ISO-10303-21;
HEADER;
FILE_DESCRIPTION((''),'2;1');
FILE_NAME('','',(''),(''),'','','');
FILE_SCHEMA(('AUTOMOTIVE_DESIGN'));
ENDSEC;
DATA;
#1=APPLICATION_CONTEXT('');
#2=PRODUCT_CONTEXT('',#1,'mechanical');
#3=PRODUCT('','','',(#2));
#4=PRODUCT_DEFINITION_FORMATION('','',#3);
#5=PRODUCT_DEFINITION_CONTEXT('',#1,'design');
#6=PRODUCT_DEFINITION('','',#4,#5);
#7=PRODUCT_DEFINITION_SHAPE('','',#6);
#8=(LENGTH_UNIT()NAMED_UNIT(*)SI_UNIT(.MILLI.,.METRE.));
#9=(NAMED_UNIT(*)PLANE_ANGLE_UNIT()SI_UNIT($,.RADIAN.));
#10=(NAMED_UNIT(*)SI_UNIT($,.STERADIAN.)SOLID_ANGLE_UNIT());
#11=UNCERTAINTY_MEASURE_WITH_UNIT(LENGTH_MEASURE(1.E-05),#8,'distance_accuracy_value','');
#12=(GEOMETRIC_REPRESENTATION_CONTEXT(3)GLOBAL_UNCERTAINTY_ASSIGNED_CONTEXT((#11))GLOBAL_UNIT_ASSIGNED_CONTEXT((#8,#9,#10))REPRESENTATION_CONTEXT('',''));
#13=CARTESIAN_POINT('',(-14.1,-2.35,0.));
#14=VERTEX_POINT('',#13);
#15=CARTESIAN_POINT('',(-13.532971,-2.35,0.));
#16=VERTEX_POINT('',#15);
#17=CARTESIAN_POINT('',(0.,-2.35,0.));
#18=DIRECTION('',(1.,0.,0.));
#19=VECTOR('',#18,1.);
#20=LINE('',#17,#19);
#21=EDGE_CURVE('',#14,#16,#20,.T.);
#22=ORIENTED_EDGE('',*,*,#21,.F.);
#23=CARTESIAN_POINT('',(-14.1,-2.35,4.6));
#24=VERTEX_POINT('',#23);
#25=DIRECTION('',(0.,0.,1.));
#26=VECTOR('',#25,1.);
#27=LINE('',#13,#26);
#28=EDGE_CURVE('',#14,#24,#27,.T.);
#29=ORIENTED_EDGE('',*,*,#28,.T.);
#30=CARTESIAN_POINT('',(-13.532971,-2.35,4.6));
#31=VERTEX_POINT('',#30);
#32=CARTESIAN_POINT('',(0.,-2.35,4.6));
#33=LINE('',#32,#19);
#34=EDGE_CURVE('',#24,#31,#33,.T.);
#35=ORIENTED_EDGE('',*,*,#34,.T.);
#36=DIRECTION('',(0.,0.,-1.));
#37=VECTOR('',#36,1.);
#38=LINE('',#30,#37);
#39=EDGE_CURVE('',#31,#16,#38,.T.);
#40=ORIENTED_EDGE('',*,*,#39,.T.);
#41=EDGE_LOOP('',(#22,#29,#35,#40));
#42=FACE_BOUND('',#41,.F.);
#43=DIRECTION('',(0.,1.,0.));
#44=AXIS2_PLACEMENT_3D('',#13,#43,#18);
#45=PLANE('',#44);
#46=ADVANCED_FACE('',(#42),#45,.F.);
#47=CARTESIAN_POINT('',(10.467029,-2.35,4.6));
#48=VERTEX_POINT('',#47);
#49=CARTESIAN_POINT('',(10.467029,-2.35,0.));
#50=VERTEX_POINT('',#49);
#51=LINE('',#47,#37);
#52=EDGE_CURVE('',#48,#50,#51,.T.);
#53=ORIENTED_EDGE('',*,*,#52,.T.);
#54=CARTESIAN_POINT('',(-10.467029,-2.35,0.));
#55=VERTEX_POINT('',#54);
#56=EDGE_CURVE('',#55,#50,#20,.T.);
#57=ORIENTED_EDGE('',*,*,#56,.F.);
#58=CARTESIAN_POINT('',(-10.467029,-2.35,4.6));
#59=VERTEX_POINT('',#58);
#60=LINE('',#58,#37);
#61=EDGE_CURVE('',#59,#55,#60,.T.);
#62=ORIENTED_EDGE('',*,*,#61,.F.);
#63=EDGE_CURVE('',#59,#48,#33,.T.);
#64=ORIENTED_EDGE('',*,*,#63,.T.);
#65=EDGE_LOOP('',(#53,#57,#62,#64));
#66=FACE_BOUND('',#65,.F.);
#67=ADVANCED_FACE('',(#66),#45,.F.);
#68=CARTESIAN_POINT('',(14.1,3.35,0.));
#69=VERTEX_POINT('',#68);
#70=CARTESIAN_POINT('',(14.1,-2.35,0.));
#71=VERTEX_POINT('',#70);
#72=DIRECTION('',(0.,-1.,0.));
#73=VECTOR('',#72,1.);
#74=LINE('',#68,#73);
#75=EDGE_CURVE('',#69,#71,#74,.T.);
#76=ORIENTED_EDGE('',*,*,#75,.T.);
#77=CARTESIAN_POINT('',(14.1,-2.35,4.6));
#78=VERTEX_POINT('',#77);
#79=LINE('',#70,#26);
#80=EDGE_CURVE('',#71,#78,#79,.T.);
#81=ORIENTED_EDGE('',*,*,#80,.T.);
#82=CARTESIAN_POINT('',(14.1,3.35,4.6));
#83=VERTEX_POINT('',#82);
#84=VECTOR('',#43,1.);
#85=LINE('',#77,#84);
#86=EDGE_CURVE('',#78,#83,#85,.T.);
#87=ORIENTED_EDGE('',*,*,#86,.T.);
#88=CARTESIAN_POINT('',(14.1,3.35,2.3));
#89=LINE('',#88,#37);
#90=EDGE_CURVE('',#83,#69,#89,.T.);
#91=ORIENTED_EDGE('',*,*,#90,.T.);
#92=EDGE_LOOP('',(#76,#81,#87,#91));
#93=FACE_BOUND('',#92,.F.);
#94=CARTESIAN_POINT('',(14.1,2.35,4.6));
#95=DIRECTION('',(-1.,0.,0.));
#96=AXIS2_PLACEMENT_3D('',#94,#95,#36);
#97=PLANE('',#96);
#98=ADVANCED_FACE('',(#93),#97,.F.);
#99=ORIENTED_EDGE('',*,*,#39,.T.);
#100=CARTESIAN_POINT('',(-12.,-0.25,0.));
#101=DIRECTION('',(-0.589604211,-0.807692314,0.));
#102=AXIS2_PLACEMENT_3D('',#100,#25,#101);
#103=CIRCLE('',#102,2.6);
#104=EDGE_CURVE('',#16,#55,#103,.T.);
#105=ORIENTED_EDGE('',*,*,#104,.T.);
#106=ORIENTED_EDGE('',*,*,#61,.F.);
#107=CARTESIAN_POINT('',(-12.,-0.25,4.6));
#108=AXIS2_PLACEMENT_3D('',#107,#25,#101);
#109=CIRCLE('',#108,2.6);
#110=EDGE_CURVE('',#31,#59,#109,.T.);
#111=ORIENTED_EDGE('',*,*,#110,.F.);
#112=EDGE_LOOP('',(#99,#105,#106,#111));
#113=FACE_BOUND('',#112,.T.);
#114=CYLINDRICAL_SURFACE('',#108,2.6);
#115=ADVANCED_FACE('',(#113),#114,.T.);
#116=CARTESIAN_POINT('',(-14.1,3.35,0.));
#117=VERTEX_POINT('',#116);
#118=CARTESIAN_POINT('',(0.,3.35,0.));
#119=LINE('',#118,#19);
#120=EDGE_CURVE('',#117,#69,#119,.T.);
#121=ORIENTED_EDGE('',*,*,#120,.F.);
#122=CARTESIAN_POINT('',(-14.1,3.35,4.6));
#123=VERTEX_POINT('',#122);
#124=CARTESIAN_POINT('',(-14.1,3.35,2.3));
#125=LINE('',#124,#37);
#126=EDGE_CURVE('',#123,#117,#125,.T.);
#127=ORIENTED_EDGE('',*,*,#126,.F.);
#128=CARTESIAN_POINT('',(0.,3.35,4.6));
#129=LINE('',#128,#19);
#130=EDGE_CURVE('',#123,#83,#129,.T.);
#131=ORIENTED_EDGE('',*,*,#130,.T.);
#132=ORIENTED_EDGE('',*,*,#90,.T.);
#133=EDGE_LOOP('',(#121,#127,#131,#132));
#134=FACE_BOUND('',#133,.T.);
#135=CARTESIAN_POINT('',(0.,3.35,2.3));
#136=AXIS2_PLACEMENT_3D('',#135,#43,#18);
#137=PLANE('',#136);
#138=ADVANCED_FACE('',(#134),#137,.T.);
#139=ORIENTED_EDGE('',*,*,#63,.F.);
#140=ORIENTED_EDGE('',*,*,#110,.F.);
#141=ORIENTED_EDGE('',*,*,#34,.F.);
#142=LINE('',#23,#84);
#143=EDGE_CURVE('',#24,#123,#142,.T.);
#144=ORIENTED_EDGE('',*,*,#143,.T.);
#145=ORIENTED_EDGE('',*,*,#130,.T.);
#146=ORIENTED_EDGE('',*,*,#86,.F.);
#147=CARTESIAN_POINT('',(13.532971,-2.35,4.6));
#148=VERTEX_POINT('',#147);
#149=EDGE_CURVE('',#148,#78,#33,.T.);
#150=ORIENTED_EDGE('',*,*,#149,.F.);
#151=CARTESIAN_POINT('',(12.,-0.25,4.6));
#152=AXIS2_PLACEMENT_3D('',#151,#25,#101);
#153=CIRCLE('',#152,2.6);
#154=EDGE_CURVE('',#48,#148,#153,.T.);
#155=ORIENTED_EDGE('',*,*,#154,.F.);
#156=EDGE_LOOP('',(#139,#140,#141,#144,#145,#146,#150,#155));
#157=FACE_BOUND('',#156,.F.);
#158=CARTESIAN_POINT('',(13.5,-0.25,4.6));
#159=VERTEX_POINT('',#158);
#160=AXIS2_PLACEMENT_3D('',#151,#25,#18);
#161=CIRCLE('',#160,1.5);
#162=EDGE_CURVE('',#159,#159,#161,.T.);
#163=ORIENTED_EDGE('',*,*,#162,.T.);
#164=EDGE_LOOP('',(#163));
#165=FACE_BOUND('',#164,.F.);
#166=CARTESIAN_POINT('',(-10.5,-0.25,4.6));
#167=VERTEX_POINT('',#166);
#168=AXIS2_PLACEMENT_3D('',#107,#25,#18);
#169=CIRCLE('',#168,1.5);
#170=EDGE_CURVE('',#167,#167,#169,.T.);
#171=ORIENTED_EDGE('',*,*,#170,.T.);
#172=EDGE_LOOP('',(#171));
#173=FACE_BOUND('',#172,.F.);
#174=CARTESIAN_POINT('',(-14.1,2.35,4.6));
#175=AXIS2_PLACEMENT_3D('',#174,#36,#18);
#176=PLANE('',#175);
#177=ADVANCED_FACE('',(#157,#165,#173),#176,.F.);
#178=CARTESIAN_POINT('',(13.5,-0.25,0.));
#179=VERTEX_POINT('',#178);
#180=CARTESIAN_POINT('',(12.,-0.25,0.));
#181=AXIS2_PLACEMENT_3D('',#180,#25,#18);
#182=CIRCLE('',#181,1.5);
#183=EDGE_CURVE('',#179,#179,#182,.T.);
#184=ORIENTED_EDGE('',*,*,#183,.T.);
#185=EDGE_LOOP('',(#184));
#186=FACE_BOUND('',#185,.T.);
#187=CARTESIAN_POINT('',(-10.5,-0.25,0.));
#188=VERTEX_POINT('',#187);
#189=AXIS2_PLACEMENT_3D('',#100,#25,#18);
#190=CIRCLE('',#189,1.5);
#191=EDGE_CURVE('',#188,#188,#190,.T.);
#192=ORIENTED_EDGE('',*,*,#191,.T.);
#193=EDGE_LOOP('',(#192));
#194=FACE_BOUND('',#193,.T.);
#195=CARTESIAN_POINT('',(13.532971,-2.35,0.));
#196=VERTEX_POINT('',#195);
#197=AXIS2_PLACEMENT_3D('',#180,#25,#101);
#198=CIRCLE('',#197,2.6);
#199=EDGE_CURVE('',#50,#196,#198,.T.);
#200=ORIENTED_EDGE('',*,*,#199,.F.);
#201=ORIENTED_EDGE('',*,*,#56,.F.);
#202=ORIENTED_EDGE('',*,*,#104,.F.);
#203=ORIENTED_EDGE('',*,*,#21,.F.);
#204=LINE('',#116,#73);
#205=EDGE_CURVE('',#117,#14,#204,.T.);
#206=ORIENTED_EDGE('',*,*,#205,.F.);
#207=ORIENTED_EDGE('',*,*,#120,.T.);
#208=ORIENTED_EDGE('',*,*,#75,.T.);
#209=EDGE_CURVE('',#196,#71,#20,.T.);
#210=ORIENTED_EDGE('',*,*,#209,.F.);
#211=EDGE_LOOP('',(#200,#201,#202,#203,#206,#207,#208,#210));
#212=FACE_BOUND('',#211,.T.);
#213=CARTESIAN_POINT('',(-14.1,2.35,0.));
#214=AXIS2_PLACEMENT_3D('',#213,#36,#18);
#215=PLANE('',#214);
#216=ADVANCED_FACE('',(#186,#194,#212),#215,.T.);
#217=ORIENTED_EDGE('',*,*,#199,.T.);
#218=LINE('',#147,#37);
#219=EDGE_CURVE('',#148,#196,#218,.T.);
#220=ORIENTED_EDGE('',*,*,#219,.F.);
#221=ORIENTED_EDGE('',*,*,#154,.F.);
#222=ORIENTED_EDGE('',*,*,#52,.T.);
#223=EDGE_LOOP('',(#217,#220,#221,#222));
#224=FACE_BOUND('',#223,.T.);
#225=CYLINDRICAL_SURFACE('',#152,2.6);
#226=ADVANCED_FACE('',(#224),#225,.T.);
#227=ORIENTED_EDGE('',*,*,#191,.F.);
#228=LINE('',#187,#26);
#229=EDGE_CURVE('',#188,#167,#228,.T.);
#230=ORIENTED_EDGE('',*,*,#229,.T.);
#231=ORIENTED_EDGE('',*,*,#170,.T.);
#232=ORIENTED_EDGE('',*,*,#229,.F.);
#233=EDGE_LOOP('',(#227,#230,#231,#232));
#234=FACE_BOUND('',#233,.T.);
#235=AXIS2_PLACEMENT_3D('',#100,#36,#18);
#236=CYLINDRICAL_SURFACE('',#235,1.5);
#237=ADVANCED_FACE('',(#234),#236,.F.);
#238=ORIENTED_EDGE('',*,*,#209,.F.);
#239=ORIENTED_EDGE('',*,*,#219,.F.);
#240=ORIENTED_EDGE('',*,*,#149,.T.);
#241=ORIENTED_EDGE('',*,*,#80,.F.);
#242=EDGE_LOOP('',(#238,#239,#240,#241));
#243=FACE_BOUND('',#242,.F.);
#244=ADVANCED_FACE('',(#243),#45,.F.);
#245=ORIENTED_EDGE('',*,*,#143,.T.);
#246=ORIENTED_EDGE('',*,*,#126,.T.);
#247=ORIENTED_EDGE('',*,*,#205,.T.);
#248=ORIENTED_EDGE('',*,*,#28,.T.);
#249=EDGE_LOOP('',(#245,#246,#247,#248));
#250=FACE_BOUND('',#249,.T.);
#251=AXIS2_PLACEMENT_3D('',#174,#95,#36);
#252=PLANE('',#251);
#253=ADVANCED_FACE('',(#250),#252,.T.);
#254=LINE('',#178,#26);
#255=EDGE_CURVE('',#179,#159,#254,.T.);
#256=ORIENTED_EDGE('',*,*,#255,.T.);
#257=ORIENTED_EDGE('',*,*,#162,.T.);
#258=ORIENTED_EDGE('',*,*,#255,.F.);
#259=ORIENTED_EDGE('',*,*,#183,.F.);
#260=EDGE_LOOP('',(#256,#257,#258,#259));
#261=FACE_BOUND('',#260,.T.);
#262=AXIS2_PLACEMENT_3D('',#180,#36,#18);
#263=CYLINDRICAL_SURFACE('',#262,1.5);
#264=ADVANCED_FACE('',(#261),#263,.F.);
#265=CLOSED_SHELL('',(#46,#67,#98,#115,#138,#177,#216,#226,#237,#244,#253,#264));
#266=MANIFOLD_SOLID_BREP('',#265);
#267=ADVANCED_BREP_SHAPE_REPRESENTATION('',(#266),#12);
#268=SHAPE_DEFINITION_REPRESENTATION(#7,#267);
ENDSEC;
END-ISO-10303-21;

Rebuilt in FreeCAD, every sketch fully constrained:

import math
import FreeCAD as App
import Part
import Sketcher

doc = App.newDocument("Part")
body = doc.addObject("PartDesign::Body", "Body")

# Sketch on XY plane
sketch1 = body.newObject("Sketcher::SketchObject", "Sketch")
sketch1.AttachmentSupport = (doc.getObject("XY_Plane"), [""])
sketch1.MapMode = "FlatFace"
sketch1.addGeometry(Part.LineSegment(App.Vector(-14.1, 2.35, 0), App.Vector(-14.1, -2.35, 0)), False)
sketch1.addGeometry(Part.LineSegment(App.Vector(-14.1, -2.35, 0), App.Vector(14.1, -2.35, 0)), False)
sketch1.addGeometry(Part.LineSegment(App.Vector(14.1, -2.35, 0), App.Vector(14.1, 2.35, 0)), False)
sketch1.addGeometry(Part.LineSegment(App.Vector(14.1, 2.35, 0), App.Vector(-14.1, 2.35, 0)), False)
sketch1.addGeometry(Part.Circle(App.Vector(-12, -0.25, 0), App.Vector(0, 0, 1), 1.5), False)
sketch1.addGeometry(Part.Circle(App.Vector(12, -0.25, 0), App.Vector(0, 0, 1), 1.5), False)
sketch1.addConstraint(Sketcher.Constraint("Coincident", 0, 2, 1, 1))
sketch1.addConstraint(Sketcher.Constraint("Coincident", 1, 2, 2, 1))
sketch1.addConstraint(Sketcher.Constraint("Coincident", 2, 2, 3, 1))
sketch1.addConstraint(Sketcher.Constraint("Coincident", 3, 2, 0, 1))
sketch1.addConstraint(Sketcher.Constraint("Vertical", 0))
sketch1.addConstraint(Sketcher.Constraint("Horizontal", 1))
sketch1.addConstraint(Sketcher.Constraint("Vertical", 2))
sketch1.addConstraint(Sketcher.Constraint("Horizontal", 3))
sketch1.addConstraint(Sketcher.Constraint("Equal", 4, 5))
sketch1.addConstraint(Sketcher.Constraint("Symmetric", 0, 2, 2, 2, -1, 1))
sketch1.addConstraint(Sketcher.Constraint("Symmetric", 4, 3, 5, 3, -2))
sketch1.addConstraint(Sketcher.Constraint("Diameter", 4, 3.0))
sketch1.addConstraint(Sketcher.Constraint("DistanceX", 1, 1, 1, 2, 28.2))
sketch1.addConstraint(Sketcher.Constraint("DistanceY", 0, 2, 0, 1, 4.7))
sketch1.addConstraint(Sketcher.Constraint("DistanceX", 4, 3, -1, 1, 12.0))
sketch1.addConstraint(Sketcher.Constraint("DistanceY", 0, 2, 4, 3, 2.1))
pad1 = body.newObject("PartDesign::Pad", "Pad")
pad1.Profile = sketch1
pad1.Length = 4.6

# Sketch on XY plane
sketch2 = body.newObject("Sketcher::SketchObject", "Sketch001")
sketch2.AttachmentSupport = (doc.getObject("XY_Plane"), [""])
sketch2.MapMode = "FlatFace"
sketch2.AttachmentOffset = App.Placement(App.Vector(0, 0, 4.6), App.Rotation())
sketch2.addGeometry(Part.ArcOfCircle(Part.Circle(App.Vector(12, -0.25, 0), App.Vector(0, 0, 1), 2.6), math.radians(-126.128927), math.radians(-53.871073)), False)
sketch2.addGeometry(Part.LineSegment(App.Vector(13.532971, -2.35, 0), App.Vector(10.467029, -2.35, 0)), False)
sketch2.addGeometry(Part.ArcOfCircle(Part.Circle(App.Vector(-12, -0.25, 0), App.Vector(0, 0, 1), 2.6), math.radians(-126.128927), math.radians(-53.871073)), False)
sketch2.addGeometry(Part.LineSegment(App.Vector(-10.467029, -2.35, 0), App.Vector(-13.532971, -2.35, 0)), False)
sketch2.addConstraint(Sketcher.Constraint("Coincident", 0, 1, 1, 2))
sketch2.addConstraint(Sketcher.Constraint("Coincident", 1, 1, 0, 2))
sketch2.addConstraint(Sketcher.Constraint("Coincident", 2, 1, 3, 2))
sketch2.addConstraint(Sketcher.Constraint("Coincident", 3, 1, 2, 2))
sketch2.addConstraint(Sketcher.Constraint("Horizontal", 1))
sketch2.addConstraint(Sketcher.Constraint("Horizontal", 3))
sketch2.addConstraint(Sketcher.Constraint("Equal", 0, 2))
sketch2.addConstraint(Sketcher.Constraint("Symmetric", 0, 3, 2, 3, -2))
sketch2.addConstraint(Sketcher.Constraint("Horizontal", 1, 1, 2, 1))
sketch2.addConstraint(Sketcher.Constraint("Radius", 0, 2.6))
sketch2.addConstraint(Sketcher.Constraint("DistanceX", -1, 1, 0, 3, 12.0))
sketch2.addConstraint(Sketcher.Constraint("DistanceY", 0, 1, 0, 3, 2.1))
sketch2.addConstraint(Sketcher.Constraint("DistanceY", 0, 3, -1, 1, 0.25))
pad2 = body.newObject("PartDesign::Pad", "Pad001")
pad2.Profile = sketch2
pad2.Length = 4.6
pad2.Reversed = True

# Sketch on XZ plane
sketch3 = body.newObject("Sketcher::SketchObject", "Sketch002")
sketch3.AttachmentSupport = (doc.getObject("XZ_Plane"), [""])
sketch3.MapMode = "FlatFace"
sketch3.AttachmentOffset = App.Placement(App.Vector(0, 0, -2.35), App.Rotation())
sketch3.addGeometry(Part.LineSegment(App.Vector(-14.1, 0, 0), App.Vector(-14.1, 4.6, 0)), False)
sketch3.addGeometry(Part.LineSegment(App.Vector(-14.1, 4.6, 0), App.Vector(14.1, 4.6, 0)), False)
sketch3.addGeometry(Part.LineSegment(App.Vector(14.1, 4.6, 0), App.Vector(14.1, 0, 0)), False)
sketch3.addGeometry(Part.LineSegment(App.Vector(14.1, 0, 0), App.Vector(-14.1, 0, 0)), False)
sketch3.addConstraint(Sketcher.Constraint("Coincident", 0, 2, 1, 1))
sketch3.addConstraint(Sketcher.Constraint("Coincident", 1, 2, 2, 1))
sketch3.addConstraint(Sketcher.Constraint("Coincident", 2, 2, 3, 1))
sketch3.addConstraint(Sketcher.Constraint("Coincident", 3, 2, 0, 1))
sketch3.addConstraint(Sketcher.Constraint("Vertical", 0))
sketch3.addConstraint(Sketcher.Constraint("Horizontal", 1))
sketch3.addConstraint(Sketcher.Constraint("Vertical", 2))
sketch3.addConstraint(Sketcher.Constraint("Horizontal", 3))
sketch3.addConstraint(Sketcher.Constraint("Symmetric", 2, 2, 3, 2, -1, 1))
sketch3.addConstraint(Sketcher.Constraint("DistanceX", 1, 1, 1, 2, 28.2))
sketch3.addConstraint(Sketcher.Constraint("DistanceY", 0, 1, 0, 2, 4.6))
pad3 = body.newObject("PartDesign::Pad", "Pad002")
pad3.Profile = sketch3
pad3.Length = 1
pad3.Reversed = True

doc.recompute()
